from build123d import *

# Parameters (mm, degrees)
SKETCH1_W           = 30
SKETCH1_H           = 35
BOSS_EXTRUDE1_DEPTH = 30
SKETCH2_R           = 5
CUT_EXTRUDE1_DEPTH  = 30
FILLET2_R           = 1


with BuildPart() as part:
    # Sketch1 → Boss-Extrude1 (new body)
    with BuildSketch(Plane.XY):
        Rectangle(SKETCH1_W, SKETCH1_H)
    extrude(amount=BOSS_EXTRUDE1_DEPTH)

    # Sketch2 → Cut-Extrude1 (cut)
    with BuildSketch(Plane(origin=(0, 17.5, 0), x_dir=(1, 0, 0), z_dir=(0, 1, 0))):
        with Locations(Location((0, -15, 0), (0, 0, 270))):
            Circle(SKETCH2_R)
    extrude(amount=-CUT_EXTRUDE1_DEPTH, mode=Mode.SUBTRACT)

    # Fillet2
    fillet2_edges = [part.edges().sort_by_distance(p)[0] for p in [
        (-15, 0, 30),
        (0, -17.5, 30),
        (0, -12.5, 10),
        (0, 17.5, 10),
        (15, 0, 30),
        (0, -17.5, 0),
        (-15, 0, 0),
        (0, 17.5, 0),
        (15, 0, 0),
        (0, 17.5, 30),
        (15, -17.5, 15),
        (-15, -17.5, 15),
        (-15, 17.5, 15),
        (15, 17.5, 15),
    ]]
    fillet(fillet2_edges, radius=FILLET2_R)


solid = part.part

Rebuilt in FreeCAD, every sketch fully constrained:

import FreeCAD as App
import Part
import Sketcher
Q = App.Units.Quantity

doc = App.newDocument("Part")
body = doc.addObject("PartDesign::Body", "Body")

# Sketch on XY plane
sketch1 = body.newObject("Sketcher::SketchObject", "Sketch")
sketch1.AttachmentSupport = (doc.getObject("XY_Plane"), [""])
sketch1.MapMode = "FlatFace"
sketch1.addGeometry(Part.LineSegment(App.Vector(-15, 17.5, 0), App.Vector(-15, -17.5, 0)), False)
sketch1.addGeometry(Part.LineSegment(App.Vector(-15, -17.5, 0), App.Vector(15, -17.5, 0)), False)
sketch1.addGeometry(Part.LineSegment(App.Vector(15, -17.5, 0), App.Vector(15, 17.5, 0)), False)
sketch1.addGeometry(Part.LineSegment(App.Vector(15, 17.5, 0), App.Vector(-15, 17.5, 0)), False)
sketch1.addConstraint(Sketcher.Constraint("Coincident", 0, 2, 1, 1))
sketch1.addConstraint(Sketcher.Constraint("Coincident", 1, 2, 2, 1))
sketch1.addConstraint(Sketcher.Constraint("Coincident", 2, 2, 3, 1))
sketch1.addConstraint(Sketcher.Constraint("Coincident", 3, 2, 0, 1))
sketch1.addConstraint(Sketcher.Constraint("Vertical", 0))
sketch1.addConstraint(Sketcher.Constraint("Horizontal", 1))
sketch1.addConstraint(Sketcher.Constraint("Vertical", 2))
sketch1.addConstraint(Sketcher.Constraint("Horizontal", 3))
sketch1.addConstraint(Sketcher.Constraint("Symmetric", 0, 2, 2, 2, -1, 1))
sketch1.addConstraint(Sketcher.Constraint("DistanceX", 1, 1, 1, 2, Q("30 mm")))
sketch1.addConstraint(Sketcher.Constraint("DistanceY", 0, 2, 0, 1, Q("35 mm")))
pad1 = body.newObject("PartDesign::Pad", "Pad")
pad1.Profile = sketch1
pad1.Length = 30

# Sketch on XZ plane
sketch2 = body.newObject("Sketcher::SketchObject", "Sketch001")
sketch2.AttachmentSupport = (doc.getObject("XZ_Plane"), [""])
sketch2.MapMode = "FlatFace"
sketch2.AttachmentOffset = App.Placement(App.Vector(0, 0, -17.5), App.Rotation())
sketch2.addGeometry(Part.Circle(App.Vector(0, 15, 0), App.Vector(0, 0, 1), 5), False)
sketch2.addConstraint(Sketcher.Constraint("PointOnObject", 0, 3, -2))
sketch2.addConstraint(Sketcher.Constraint("Diameter", 0, Q("10 mm")))
sketch2.addConstraint(Sketcher.Constraint("DistanceY", -1, 1, 0, 3, Q("15 mm")))
pocket1 = body.newObject("PartDesign::Pocket", "Pocket")
pocket1.Profile = sketch2
pocket1.Length = 30
pocket1.Reversed = True
doc.recompute()

fillet = body.newObject("PartDesign::Fillet", "Fillet")
fillet.Base = (pocket1, ["Edge1"])
fillet.UseAllEdges = True
fillet.Radius = 1

doc.recompute()
